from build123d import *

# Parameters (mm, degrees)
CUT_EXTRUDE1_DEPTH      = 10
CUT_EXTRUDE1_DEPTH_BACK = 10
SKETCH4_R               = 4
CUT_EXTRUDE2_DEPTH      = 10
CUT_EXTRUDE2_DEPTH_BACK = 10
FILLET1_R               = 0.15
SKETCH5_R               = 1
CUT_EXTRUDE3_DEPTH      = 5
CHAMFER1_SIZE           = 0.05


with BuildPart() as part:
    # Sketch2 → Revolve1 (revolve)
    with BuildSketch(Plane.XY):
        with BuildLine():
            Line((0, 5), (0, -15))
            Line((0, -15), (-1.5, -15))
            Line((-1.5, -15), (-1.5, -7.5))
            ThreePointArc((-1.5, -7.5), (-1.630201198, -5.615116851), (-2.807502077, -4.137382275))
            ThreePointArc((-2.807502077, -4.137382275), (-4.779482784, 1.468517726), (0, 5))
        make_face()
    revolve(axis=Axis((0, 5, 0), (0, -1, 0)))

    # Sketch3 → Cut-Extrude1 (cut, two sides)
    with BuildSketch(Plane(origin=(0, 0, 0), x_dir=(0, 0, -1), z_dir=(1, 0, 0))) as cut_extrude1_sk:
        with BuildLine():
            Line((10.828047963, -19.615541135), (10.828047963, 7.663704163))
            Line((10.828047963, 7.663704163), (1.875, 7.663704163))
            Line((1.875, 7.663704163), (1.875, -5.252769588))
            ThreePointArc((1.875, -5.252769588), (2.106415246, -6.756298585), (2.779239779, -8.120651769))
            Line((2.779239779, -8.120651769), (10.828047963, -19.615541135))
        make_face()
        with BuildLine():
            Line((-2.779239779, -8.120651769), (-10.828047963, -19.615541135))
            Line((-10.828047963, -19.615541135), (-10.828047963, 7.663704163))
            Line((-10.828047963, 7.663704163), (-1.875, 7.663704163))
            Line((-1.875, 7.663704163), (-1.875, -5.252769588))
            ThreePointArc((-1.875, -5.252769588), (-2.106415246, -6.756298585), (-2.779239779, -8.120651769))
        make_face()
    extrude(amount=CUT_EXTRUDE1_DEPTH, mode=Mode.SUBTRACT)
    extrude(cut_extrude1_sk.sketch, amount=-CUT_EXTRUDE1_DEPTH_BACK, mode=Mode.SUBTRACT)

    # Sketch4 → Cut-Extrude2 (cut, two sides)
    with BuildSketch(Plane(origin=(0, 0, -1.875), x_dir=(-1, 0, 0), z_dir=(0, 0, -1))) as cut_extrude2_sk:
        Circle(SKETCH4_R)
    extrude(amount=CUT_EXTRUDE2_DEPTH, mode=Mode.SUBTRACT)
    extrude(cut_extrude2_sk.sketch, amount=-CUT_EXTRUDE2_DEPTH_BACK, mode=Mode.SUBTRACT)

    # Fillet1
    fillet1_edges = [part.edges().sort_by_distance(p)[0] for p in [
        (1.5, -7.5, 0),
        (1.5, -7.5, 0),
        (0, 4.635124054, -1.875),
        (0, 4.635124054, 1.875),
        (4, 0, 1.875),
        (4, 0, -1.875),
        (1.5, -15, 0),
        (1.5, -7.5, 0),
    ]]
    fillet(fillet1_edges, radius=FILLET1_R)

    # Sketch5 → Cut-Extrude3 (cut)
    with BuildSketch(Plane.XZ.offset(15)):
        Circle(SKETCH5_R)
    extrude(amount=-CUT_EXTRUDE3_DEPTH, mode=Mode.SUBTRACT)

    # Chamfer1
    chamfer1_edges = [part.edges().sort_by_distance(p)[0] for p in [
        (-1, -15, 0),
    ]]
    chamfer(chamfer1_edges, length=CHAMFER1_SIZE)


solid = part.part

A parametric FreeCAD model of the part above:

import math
import FreeCAD as App
import Part
import Sketcher
Q = App.Units.Quantity


def edges_at(feature, points):
    """Names of the edges that pass closest to the given points."""
    edges = feature.Shape.Edges
    near = lambda p: min(range(len(edges)), key=lambda i: edges[i].distToShape(Part.Vertex(*p))[0])
    return sorted({f"Edge{near(p) + 1}" for p in points})

doc = App.newDocument("Part")
body = doc.addObject("PartDesign::Body", "Body")

sketch1 = body.newObject("Sketcher::SketchObject", "Sketch")
sketch1.AttachmentSupport = (doc.getObject("XY_Plane"), [""])
sketch1.MapMode = "FlatFace"
sketch1.addGeometry(Part.LineSegment(App.Vector(0, -15, 0), App.Vector(0, 5, 0)), False)
sketch1.addGeometry(Part.ArcOfCircle(Part.Circle(App.Vector(0, 0, 0), App.Vector(0, 0, 1), 5), math.radians(90), math.radians(235.840375)), False)
sketch1.addGeometry(Part.ArcOfCircle(Part.Circle(App.Vector(-4.591623, -6.76662, 0), App.Vector(0, 0, 1), 3.177417), math.radians(-13.344769), math.radians(55.840375)), False)
sketch1.addGeometry(Part.LineSegment(App.Vector(-1.5, -7.5, 0), App.Vector(-1.5, -15, 0)), False)
sketch1.addGeometry(Part.LineSegment(App.Vector(-1.5, -15, 0), App.Vector(0, -15, 0)), False)
sketch1.addConstraint(Sketcher.Constraint("Coincident", 0, 2, 1, 1))
sketch1.addConstraint(Sketcher.Constraint("Tangent", 1, 2, 2, 2))
sketch1.addConstraint(Sketcher.Constraint("Coincident", 2, 1, 3, 1))
sketch1.addConstraint(Sketcher.Constraint("Coincident", 3, 2, 4, 1))
sketch1.addConstraint(Sketcher.Constraint("Coincident", 4, 2, 0, 1))
sketch1.addConstraint(Sketcher.Constraint("Vertical", 0))
sketch1.addConstraint(Sketcher.Constraint("Vertical", 3))
sketch1.addConstraint(Sketcher.Constraint("Horizontal", 4))
sketch1.addConstraint(Sketcher.Constraint("Coincident", 1, 3, -1, 1))
sketch1.addConstraint(Sketcher.Constraint("PointOnObject", 0, 2, -2))
sketch1.addConstraint(Sketcher.Constraint("Radius", 1, Q("5 mm")))
sketch1.addConstraint(Sketcher.Constraint("DistanceY", 0, 1, 0, 2, Q("20 mm")))
sketch1.addConstraint(Sketcher.Constraint("DistanceX", 4, 1, 4, 2, Q("1.5 mm")))
sketch1.addConstraint(Sketcher.Constraint("DistanceY", 3, 2, 3, 1, Q("7.5 mm")))
sketch1.addConstraint(Sketcher.Constraint("Radius", 2, Q("3.177417 mm")))
revolution = body.newObject("PartDesign::Revolution", "Revolution")
revolution.Profile = sketch1
revolution.ReferenceAxis = (sketch1, ["V_Axis"])
revolution.Angle = 360

sketch2 = body.newObject("Sketcher::SketchObject", "Sketch001")
sketch2.AttachmentSupport = (doc.getObject("YZ_Plane"), [""])
sketch2.MapMode = "FlatFace"
sketch2.addGeometry(Part.LineSegment(App.Vector(-19.615541, -10.828048, 0), App.Vector(7.663704, -10.828048, 0)), False)
sketch2.addGeometry(Part.LineSegment(App.Vector(7.663704, -10.828048, 0), App.Vector(7.663704, -1.875, 0)), False)
sketch2.addGeometry(Part.LineSegment(App.Vector(7.663704, -1.875, 0), App.Vector(-5.25277, -1.875, 0)), False)
sketch2.addGeometry(Part.ArcOfCircle(Part.Circle(App.Vector(-5.25277, -6.875, 0), App.Vector(0, 0, 1), 5), math.radians(90), math.radians(125)), False)
sketch2.addGeometry(Part.LineSegment(App.Vector(-8.120652, -2.77924, 0), App.Vector(-19.615541, -10.828048, 0)), False)
sketch2.addGeometry(Part.LineSegment(App.Vector(-19.615541, 10.828048, 0), App.Vector(-8.120652, 2.77924, 0)), False)
sketch2.addGeometry(Part.ArcOfCircle(Part.Circle(App.Vector(-5.25277, 6.875, 0), App.Vector(0, 0, 1), 5), math.radians(-125), math.radians(-90)), False)
sketch2.addGeometry(Part.LineSegment(App.Vector(-5.25277, 1.875, 0), App.Vector(7.663704, 1.875, 0)), False)
sketch2.addGeometry(Part.LineSegment(App.Vector(7.663704, 1.875, 0), App.Vector(7.663704, 10.828048, 0)), False)
sketch2.addGeometry(Part.LineSegment(App.Vector(7.663704, 10.828048, 0), App.Vector(-19.615541, 10.828048, 0)), False)
sketch2.addConstraint(Sketcher.Constraint("Coincident", 0, 2, 1, 1))
sketch2.addConstraint(Sketcher.Constraint("Coincident", 1, 2, 2, 1))
sketch2.addConstraint(Sketcher.Constraint("Tangent", 2, 2, 3, 1))
sketch2.addConstraint(Sketcher.Constraint("Tangent", 3, 2, 4, 1))
sketch2.addConstraint(Sketcher.Constraint("Coincident", 4, 2, 0, 1))
sketch2.addConstraint(Sketcher.Constraint("Tangent", 5, 2, 6, 1))
sketch2.addConstraint(Sketcher.Constraint("Tangent", 6, 2, 7, 1))
sketch2.addConstraint(Sketcher.Constraint("Coincident", 7, 2, 8, 1))
sketch2.addConstraint(Sketcher.Constraint("Coincident", 8, 2, 9, 1))
sketch2.addConstraint(Sketcher.Constraint("Coincident", 9, 2, 5, 1))
sketch2.addConstraint(Sketcher.Constraint("Horizontal", 0))
sketch2.addConstraint(Sketcher.Constraint("Vertical", 1))
sketch2.addConstraint(Sketcher.Constraint("Horizontal", 2))
sketch2.addConstraint(Sketcher.Constraint("Horizontal", 7))
sketch2.addConstraint(Sketcher.Constraint("Vertical", 8))
sketch2.addConstraint(Sketcher.Constraint("Horizontal", 9))
sketch2.addConstraint(Sketcher.Constraint("Equal", 3, 6))
sketch2.addConstraint(Sketcher.Constraint("Symmetric", 3, 3, 6, 3, -1))
sketch2.addConstraint(Sketcher.Constraint("Symmetric", 0, 2, 8, 2, -1))
sketch2.addConstraint(Sketcher.Constraint("Vertical", 3, 2, 5, 2))
sketch2.addConstraint(Sketcher.Constraint("Radius", 3, Q("5 mm")))
sketch2.addConstraint(Sketcher.Constraint("Angle", 4, Q("-145 deg")))
sketch2.addConstraint(Sketcher.Constraint("DistanceY", 3, 3, 6, 3, Q("13.75 mm")))
sketch2.addConstraint(Sketcher.Constraint("Distance", 4, Q("14.032669 mm")))
sketch2.addConstraint(Sketcher.Constraint("DistanceX", 0, 1, 0, 2, Q("27.279245 mm")))
sketch2.addConstraint(Sketcher.Constraint("DistanceX", 3, 3, -1, 1, Q("5.25277 mm")))
pocket1 = body.newObject("PartDesign::Pocket", "Pocket")
pocket1.Profile = sketch2
pocket1.Type = "ThroughAll"
pocket1.Midplane = True

sketch3 = body.newObject("Sketcher::SketchObject", "Sketch002")
sketch3.AttachmentSupport = (doc.getObject("XY_Plane"), [""])
sketch3.MapMode = "FlatFace"
sketch3.AttachmentOffset = App.Placement(App.Vector(0, 0, -1.875), App.Rotation())
sketch3.addGeometry(Part.Circle(App.Vector(0, 0, 0), App.Vector(0, 0, 1), 4), False)
sketch3.addConstraint(Sketcher.Constraint("Coincident", 0, 3, -1, 1))
sketch3.addConstraint(Sketcher.Constraint("Diameter", 0, Q("8 mm")))
pocket2 = body.newObject("PartDesign::Pocket", "Pocket001")
pocket2.Profile = sketch3
pocket2.Type = "ThroughAll"
pocket2.Midplane = True
doc.recompute()

fillet = body.newObject("PartDesign::Fillet", "Fillet")
fillet.Base = (pocket2, edges_at(pocket2, [
    (1.5, -7.5, 0),
    (1.5, -7.5, 0),
    (0, 4.635, -1.875),
    (0, 4.635, 1.875),
    (4, 0, 1.875),
    (4, 0, -1.875),
    (1.5, -15, 0),
    (1.5, -7.5, 0),
]))
fillet.Radius = 0.15

sketch4 = body.newObject("Sketcher::SketchObject", "Sketch003")
sketch4.AttachmentSupport = (doc.getObject("XZ_Plane"), [""])
sketch4.MapMode = "FlatFace"
sketch4.AttachmentOffset = App.Placement(App.Vector(0, 0, 15), App.Rotation())
sketch4.addGeometry(Part.Circle(App.Vector(0, 0, 0), App.Vector(0, 0, 1), 1), False)
sketch4.addConstraint(Sketcher.Constraint("Coincident", 0, 3, -1, 1))
sketch4.addConstraint(Sketcher.Constraint("Diameter", 0, Q("2 mm")))
pocket3 = body.newObject("PartDesign::Pocket", "Pocket002")
pocket3.Profile = sketch4
pocket3.Length = 5
doc.recompute()

chamfer = body.newObject("PartDesign::Chamfer", "Chamfer")
chamfer.Base = (pocket3, edges_at(pocket3, [(-1, -15, 0)]))
chamfer.Size = 0.05

doc.recompute()
